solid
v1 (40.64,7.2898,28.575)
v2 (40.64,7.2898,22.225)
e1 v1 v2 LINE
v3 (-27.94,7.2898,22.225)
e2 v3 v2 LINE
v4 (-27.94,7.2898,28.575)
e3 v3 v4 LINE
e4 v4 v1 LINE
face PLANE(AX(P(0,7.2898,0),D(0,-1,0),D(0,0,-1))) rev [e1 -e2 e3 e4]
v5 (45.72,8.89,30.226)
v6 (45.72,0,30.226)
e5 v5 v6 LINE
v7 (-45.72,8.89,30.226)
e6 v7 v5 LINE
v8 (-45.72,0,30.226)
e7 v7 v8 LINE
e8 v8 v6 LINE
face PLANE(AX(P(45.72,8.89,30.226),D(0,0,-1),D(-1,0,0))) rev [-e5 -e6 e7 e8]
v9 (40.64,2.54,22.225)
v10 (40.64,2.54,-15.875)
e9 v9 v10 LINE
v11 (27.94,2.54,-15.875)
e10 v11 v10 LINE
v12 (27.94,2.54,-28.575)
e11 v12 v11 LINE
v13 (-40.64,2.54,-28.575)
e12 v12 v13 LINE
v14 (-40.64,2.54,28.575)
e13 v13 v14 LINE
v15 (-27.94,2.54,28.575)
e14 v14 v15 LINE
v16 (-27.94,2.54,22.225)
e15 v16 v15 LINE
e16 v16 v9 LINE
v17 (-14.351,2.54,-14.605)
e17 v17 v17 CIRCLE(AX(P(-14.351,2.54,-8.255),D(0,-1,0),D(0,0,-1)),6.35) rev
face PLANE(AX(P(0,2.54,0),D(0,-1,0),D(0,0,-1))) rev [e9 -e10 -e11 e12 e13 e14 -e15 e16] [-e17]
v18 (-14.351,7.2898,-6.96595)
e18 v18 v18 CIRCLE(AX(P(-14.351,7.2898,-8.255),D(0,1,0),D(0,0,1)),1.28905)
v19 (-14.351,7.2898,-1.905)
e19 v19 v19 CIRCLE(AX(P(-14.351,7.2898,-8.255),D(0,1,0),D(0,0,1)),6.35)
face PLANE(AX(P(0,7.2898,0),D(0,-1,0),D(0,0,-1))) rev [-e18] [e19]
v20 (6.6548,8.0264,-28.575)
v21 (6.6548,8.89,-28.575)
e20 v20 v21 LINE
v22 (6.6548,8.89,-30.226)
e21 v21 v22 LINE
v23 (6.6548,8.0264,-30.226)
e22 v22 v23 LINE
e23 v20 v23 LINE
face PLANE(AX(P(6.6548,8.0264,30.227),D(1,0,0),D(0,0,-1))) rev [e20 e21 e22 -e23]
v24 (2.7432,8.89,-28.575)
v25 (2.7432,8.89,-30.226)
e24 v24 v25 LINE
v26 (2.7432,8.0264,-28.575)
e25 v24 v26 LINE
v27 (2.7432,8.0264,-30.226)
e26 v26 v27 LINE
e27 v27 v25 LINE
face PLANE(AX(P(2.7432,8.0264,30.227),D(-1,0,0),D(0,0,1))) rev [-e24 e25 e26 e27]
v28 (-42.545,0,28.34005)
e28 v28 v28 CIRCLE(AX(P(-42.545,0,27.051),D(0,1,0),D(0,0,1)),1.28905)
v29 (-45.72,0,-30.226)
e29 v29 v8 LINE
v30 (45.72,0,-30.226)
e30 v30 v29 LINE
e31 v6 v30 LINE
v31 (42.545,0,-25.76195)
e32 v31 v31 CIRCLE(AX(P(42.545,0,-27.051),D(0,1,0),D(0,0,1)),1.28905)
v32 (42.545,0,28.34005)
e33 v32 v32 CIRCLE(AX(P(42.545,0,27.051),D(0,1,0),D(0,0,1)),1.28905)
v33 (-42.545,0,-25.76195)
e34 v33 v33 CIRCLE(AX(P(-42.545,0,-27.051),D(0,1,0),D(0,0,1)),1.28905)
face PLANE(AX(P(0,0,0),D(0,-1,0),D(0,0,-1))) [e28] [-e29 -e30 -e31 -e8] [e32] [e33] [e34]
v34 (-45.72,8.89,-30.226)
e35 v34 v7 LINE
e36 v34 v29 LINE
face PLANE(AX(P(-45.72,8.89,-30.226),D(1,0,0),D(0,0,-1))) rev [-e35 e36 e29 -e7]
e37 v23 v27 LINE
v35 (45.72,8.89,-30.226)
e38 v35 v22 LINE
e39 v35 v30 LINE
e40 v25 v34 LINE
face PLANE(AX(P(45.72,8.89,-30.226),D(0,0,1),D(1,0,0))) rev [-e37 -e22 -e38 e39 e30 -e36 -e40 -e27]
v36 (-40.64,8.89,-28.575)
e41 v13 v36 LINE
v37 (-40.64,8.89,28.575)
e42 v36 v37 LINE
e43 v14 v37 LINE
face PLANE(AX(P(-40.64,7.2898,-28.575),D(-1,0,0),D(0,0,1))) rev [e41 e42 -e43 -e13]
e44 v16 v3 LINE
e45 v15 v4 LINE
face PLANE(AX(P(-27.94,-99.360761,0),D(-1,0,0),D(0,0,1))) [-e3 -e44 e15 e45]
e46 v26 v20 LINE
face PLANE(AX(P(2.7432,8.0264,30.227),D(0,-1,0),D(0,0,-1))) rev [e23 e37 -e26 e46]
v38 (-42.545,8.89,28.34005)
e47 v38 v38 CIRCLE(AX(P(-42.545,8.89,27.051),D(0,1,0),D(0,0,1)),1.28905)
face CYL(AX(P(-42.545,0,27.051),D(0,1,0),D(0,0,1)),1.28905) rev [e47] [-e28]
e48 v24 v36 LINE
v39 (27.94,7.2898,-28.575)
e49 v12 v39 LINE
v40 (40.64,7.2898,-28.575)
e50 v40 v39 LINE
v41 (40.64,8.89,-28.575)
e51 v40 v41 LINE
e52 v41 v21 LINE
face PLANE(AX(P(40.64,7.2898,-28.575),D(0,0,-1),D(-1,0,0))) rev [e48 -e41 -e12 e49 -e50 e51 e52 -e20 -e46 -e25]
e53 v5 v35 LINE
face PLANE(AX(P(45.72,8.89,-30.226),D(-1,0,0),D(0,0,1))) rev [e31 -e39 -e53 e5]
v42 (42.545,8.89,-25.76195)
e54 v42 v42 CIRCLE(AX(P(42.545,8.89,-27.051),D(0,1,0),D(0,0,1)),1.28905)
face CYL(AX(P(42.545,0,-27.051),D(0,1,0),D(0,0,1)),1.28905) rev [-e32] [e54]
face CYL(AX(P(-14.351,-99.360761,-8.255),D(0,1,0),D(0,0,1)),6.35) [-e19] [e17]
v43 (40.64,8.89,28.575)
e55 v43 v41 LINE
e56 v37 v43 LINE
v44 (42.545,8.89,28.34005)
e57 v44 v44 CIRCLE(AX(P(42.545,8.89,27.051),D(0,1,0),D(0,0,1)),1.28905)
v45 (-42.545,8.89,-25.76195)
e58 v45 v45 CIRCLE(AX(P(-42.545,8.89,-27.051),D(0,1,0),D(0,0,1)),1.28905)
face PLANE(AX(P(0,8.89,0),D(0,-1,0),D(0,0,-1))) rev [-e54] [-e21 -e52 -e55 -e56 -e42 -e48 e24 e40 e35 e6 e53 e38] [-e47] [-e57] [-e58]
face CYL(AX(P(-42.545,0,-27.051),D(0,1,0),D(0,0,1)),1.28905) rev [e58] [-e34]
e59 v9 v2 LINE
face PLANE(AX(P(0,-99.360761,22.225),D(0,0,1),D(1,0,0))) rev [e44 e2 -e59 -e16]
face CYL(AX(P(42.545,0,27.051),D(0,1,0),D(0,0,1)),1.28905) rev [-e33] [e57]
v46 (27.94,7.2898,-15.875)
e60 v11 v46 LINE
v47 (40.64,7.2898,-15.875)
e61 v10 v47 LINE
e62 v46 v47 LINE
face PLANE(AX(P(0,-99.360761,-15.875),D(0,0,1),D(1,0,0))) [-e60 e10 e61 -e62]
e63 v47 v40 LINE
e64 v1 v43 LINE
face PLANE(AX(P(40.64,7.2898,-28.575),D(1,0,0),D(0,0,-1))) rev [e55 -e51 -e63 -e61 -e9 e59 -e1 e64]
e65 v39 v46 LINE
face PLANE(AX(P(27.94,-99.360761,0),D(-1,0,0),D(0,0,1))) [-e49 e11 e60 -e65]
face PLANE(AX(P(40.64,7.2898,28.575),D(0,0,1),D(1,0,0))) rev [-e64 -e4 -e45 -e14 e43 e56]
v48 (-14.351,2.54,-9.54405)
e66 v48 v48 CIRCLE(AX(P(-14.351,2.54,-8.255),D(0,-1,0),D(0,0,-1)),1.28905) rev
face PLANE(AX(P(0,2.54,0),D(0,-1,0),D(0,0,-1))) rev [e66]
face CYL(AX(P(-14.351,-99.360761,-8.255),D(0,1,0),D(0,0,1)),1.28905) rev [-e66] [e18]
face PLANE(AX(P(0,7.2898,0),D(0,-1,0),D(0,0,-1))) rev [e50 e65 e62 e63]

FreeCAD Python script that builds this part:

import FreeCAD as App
import Part
import Sketcher
from FreeCAD import Vector
Q = App.Units.Quantity


def add_polygon(sketch, points):
    """Adds a closed chain of lines whose ends are joined by coincident constraints."""
    first, n = sketch.GeometryCount, len(points)
    for a, b in zip(points, points[1:] + points[:1]):
        sketch.addGeometry(Part.LineSegment(App.Vector(*a, 0), App.Vector(*b, 0)), False)
    for i in range(n):
        sketch.addConstraint(Sketcher.Constraint("Coincident", first + i, 2, first + (i + 1) % n, 1))

doc = App.newDocument("Part")
body = doc.addObject("PartDesign::Body", "Body")

sketch1 = body.newObject("Sketcher::SketchObject", "Sketch")
sketch1.AttachmentSupport = (doc.getObject("XZ_Plane"), [""])
sketch1.MapMode = "FlatFace"
add_polygon(sketch1, [(-45.72, -30.226), (-45.72, 30.226), (45.72, 30.226), (45.72, -30.226)])
sketch1.addConstraint([
    Sketcher.Constraint("Vertical", 0),
    Sketcher.Constraint("Horizontal", 1),
    Sketcher.Constraint("Vertical", 2),
    Sketcher.Constraint("Horizontal", 3),
    Sketcher.Constraint("Symmetric", 0, 2, 2, 2, -1, 1),
    Sketcher.Constraint("DistanceX", 1, 1, 1, 2, Q("3.6 in")),
    Sketcher.Constraint("DistanceY", 0, 1, 0, 2, Q("2.38 in")),
])
pad1 = body.newObject("PartDesign::Pad", "Pad")
pad1.Profile = sketch1
pad1.Length = Q("0.35 in")
pad1.Reversed = True

sketch2 = body.newObject("Sketcher::SketchObject", "Sketch001")
sketch2.AttachmentSupport = (doc.getObject("XZ_Plane"), [""])
sketch2.MapMode = "FlatFace"
sketch2.AttachmentOffset = App.Placement(Vector(0, 0, -0.35 * 25.4), App.Rotation())
add_polygon(sketch2, [(-40.64, -28.575), (-40.64, 28.575), (40.64, 28.575), (40.64, -28.575)])
sketch2.addConstraint([
    Sketcher.Constraint("Vertical", 0),
    Sketcher.Constraint("Horizontal", 1),
    Sketcher.Constraint("Vertical", 2),
    Sketcher.Constraint("Horizontal", 3),
    Sketcher.Constraint("Symmetric", 0, 2, 2, 2, -1, 1),
    Sketcher.Constraint("DistanceX", 1, 1, 1, 2, Q("3.2 in")),
    Sketcher.Constraint("DistanceY", 0, 1, 0, 2, Q("2.25 in")),
])
pocket1 = body.newObject("PartDesign::Pocket", "Pocket")
pocket1.Profile = sketch2
pocket1.Length = Q("0.063 in")
pocket1.Reversed = True

sketch3 = body.newObject("Sketcher::SketchObject", "Sketch002")
sketch3.AttachmentSupport = (doc.getObject("XZ_Plane"), [""])
sketch3.MapMode = "FlatFace"
sketch3.AttachmentOffset = App.Placement(Vector(0, 0, -0.287 * 25.4), App.Rotation())
add_polygon(sketch3, [(27.94, -28.575), (-40.64, -28.575), (-40.64, 28.575), (-27.94, 28.575), (-27.94, 22.225), (40.64, 22.225), (40.64, -15.875), (27.94, -15.875)])
sketch3.addGeometry(Part.Circle(Vector(-14.351, -8.255, 0), Vector(0, 0, 1), 6.35), False)
sketch3.addGeometry(Part.Circle(Vector(-14.351, -8.255, 0), Vector(0, 0, 1), 1.28905), False)
sketch3.addConstraint([
    Sketcher.Constraint("Horizontal", 0),
    Sketcher.Constraint("Vertical", 1),
    Sketcher.Constraint("Horizontal", 2),
    Sketcher.Constraint("Vertical", 3),
    Sketcher.Constraint("Horizontal", 4),
    Sketcher.Constraint("Vertical", 5),
    Sketcher.Constraint("Horizontal", 6),
    Sketcher.Constraint("Vertical", 7),
    Sketcher.Constraint("Coincident", 9, 3, 8, 3),
    Sketcher.Constraint("Symmetric", 2, 2, 7, 2, -1, 1),
    Sketcher.Constraint("Equal", 0, 4),
    Sketcher.Constraint("Equal", 6, 7),
    Sketcher.Constraint("Diameter", 8, Q("0.5 in")),
    Sketcher.Constraint("DistanceX", 0, 2, 0, 1, Q("2.7 in")),
    Sketcher.Constraint("DistanceX", 2, 1, 2, 2, Q("0.5 in")),
    Sketcher.Constraint("DistanceY", 5, 2, 5, 1, Q("1.5 in")),
    Sketcher.Constraint("Diameter", 9, Q("0.1015 in")),
    Sketcher.Constraint("DistanceY", 1, 1, 1, 2, Q("2.25 in")),
    Sketcher.Constraint("DistanceY", 0, 2, 8, 3, Q("0.8 in")),
    Sketcher.Constraint("DistanceX", 8, 3, -1, 1, Q("0.565 in")),
])
pocket2 = body.newObject("PartDesign::Pocket", "Pocket001")
pocket2.Profile = sketch3
pocket2.Length = Q("0.187 in")
pocket2.Reversed = True

sketch4 = body.newObject("Sketcher::SketchObject", "Sketch003")
sketch4.AttachmentSupport = (doc.getObject("XZ_Plane"), [""])
sketch4.MapMode = "FlatFace"
sketch4.AttachmentOffset = App.Placement(Vector(0, 0, -0.35 * 25.4), App.Rotation())
sketch4.addGeometry([
    Part.Circle(Vector(-42.545, -27.051, 0), Vector(0, 0, 1), 1.28905),
    Part.Circle(Vector(-42.545, 27.051, 0), Vector(0, 0, 1), 1.28905),
    Part.Circle(Vector(42.545, 27.051, 0), Vector(0, 0, 1), 1.28905),
    Part.Circle(Vector(42.545, -27.051, 0), Vector(0, 0, 1), 1.28905),
], False)
sketch4.addConstraint([
    Sketcher.Constraint("Equal", 0, 1),
    Sketcher.Constraint("Equal", 1, 2),
    Sketcher.Constraint("Equal", 2, 3),
    Sketcher.Constraint("Symmetric", 0, 3, 2, 3, -1, 1),
    Sketcher.Constraint("Symmetric", 1, 3, 3, 3, -1, 1),
    Sketcher.Constraint("Symmetric", 1, 3, 2, 3, -2),
    Sketcher.Constraint("Diameter", 0, Q("0.1015 in")),
    Sketcher.Constraint("DistanceY", 0, 3, 1, 3, Q("2.13 in")),
    Sketcher.Constraint("DistanceX", 1, 3, 2, 3, Q("3.35 in")),
])
pocket3 = body.newObject("PartDesign::Pocket", "Pocket002")
pocket3.Profile = sketch4
pocket3.Type = "ThroughAll"
pocket3.Reversed = True

sketch5 = body.newObject("Sketcher::SketchObject", "Sketch004")
sketch5.AttachmentSupport = (doc.getObject("XY_Plane"), [""])
sketch5.MapMode = "FlatFace"
sketch5.AttachmentOffset = App.Placement(Vector(0, 0, -1.19 * 25.4), App.Rotation())
add_polygon(sketch5, [(6.6548, 8.89), (6.6548, 8.0264), (2.7432, 8.0264), (2.7432, 8.89)])
sketch5.addConstraint([
    Sketcher.Constraint("Vertical", 0),
    Sketcher.Constraint("Horizontal", 1),
    Sketcher.Constraint("Vertical", 2),
    Sketcher.Constraint("Horizontal", 3),
    Sketcher.Constraint("DistanceX", 1, 2, 1, 1, Q("0.154 in")),
    Sketcher.Constraint("DistanceY", 0, 2, 0, 1, Q("0.034 in")),
    Sketcher.Constraint("DistanceY", -1, 1, 2, 2, Q("0.35 in")),
    Sketcher.Constraint("DistanceX", -1, 1, 0, 2, Q("0.262 in")),
])
pocket4 = body.newObject("PartDesign::Pocket", "Pocket003")
pocket4.Profile = sketch5
pocket4.Type = "UpToFirst"
pocket4.Reversed = True

doc.recompute()
